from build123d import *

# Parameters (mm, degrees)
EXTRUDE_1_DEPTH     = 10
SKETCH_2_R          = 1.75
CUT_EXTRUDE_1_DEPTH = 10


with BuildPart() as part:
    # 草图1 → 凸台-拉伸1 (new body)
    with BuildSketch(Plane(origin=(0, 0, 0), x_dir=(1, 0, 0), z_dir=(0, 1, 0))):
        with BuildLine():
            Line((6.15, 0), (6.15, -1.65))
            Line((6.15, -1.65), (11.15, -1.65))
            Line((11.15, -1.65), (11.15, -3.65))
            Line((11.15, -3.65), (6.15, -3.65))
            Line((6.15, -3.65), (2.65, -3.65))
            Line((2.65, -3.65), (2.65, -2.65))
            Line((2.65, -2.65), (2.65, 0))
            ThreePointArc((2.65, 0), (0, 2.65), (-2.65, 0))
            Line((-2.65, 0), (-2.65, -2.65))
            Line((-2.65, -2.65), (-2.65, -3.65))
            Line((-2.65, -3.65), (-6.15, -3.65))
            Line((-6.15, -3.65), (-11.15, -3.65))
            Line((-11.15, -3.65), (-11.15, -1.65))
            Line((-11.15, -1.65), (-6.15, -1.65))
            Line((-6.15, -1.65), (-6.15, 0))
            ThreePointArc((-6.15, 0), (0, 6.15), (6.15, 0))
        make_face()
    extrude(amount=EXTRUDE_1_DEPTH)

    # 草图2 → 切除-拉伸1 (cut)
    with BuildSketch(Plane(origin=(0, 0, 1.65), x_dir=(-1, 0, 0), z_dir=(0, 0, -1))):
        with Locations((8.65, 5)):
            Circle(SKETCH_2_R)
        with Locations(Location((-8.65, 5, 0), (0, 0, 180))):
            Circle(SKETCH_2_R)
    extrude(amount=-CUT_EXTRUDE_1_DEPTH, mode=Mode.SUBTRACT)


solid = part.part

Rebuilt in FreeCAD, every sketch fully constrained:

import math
import FreeCAD as App
import Part
import Sketcher
from FreeCAD import Vector

doc = App.newDocument("Part")
body = doc.addObject("PartDesign::Body", "Body")

sketch1 = body.newObject("Sketcher::SketchObject", "Sketch")
sketch1.AttachmentSupport = (doc.getObject("XZ_Plane"), [""])
sketch1.MapMode = "FlatFace"
sketch1.addGeometry(Part.LineSegment(Vector(6.2, 1.6, 0), Vector(6.2, 0, 0)), False)
sketch1.addGeometry(Part.ArcOfCircle(Part.Circle(Vector(0, 0, 0), Vector(0, 0, 1), 6.2), math.radians(180), math.radians(360)), False)
sketch1.addGeometry(Part.LineSegment(Vector(-6.2, 0, 0), Vector(-6.2, 1.6, 0)), False)
sketch1.addGeometry(Part.LineSegment(Vector(-6.2, 1.6, 0), Vector(-11.2, 1.6, 0)), False)
sketch1.addGeometry(Part.LineSegment(Vector(-11.2, 1.6, 0), Vector(-11.2, 3.6, 0)), False)
sketch1.addGeometry(Part.LineSegment(Vector(-11.2, 3.6, 0), Vector(-2.6, 3.6, 0)), False)
sketch1.addGeometry(Part.LineSegment(Vector(-2.6, 3.6, 0), Vector(-2.6, 0, 0)), False)
sketch1.addGeometry(Part.ArcOfCircle(Part.Circle(Vector(0, 0, 0), Vector(0, 0, 1), 2.6), math.radians(180), math.radians(360)), False)
sketch1.addGeometry(Part.LineSegment(Vector(2.6, 0, 0), Vector(2.6, 3.6, 0)), False)
sketch1.addGeometry(Part.LineSegment(Vector(2.6, 3.6, 0), Vector(11.2, 3.6, 0)), False)
sketch1.addGeometry(Part.LineSegment(Vector(11.2, 3.6, 0), Vector(11.2, 1.6, 0)), False)
sketch1.addGeometry(Part.LineSegment(Vector(11.2, 1.6, 0), Vector(6.2, 1.6, 0)), False)
sketch1.addConstraint(Sketcher.Constraint("Tangent", 0, 2, 1, 2))
sketch1.addConstraint(Sketcher.Constraint("Tangent", 1, 1, 2, 1))
sketch1.addConstraint(Sketcher.Constraint("Coincident", 2, 2, 3, 1))
sketch1.addConstraint(Sketcher.Constraint("Coincident", 3, 2, 4, 1))
sketch1.addConstraint(Sketcher.Constraint("Coincident", 4, 2, 5, 1))
sketch1.addConstraint(Sketcher.Constraint("Coincident", 5, 2, 6, 1))
sketch1.addConstraint(Sketcher.Constraint("Tangent", 6, 2, 7, 1))
sketch1.addConstraint(Sketcher.Constraint("Tangent", 7, 2, 8, 1))
sketch1.addConstraint(Sketcher.Constraint("Coincident", 8, 2, 9, 1))
sketch1.addConstraint(Sketcher.Constraint("Coincident", 9, 2, 10, 1))
sketch1.addConstraint(Sketcher.Constraint("Coincident", 10, 2, 11, 1))
sketch1.addConstraint(Sketcher.Constraint("Coincident", 11, 2, 0, 1))
sketch1.addConstraint(Sketcher.Constraint("Vertical", 0))
sketch1.addConstraint(Sketcher.Constraint("Vertical", 2))
sketch1.addConstraint(Sketcher.Constraint("Horizontal", 3))
sketch1.addConstraint(Sketcher.Constraint("Vertical", 4))
sketch1.addConstraint(Sketcher.Constraint("Horizontal", 5))
sketch1.addConstraint(Sketcher.Constraint("Vertical", 6))
sketch1.addConstraint(Sketcher.Constraint("Vertical", 8))
sketch1.addConstraint(Sketcher.Constraint("Horizontal", 9))
sketch1.addConstraint(Sketcher.Constraint("Vertical", 10))
sketch1.addConstraint(Sketcher.Constraint("Horizontal", 11))
sketch1.addConstraint(Sketcher.Constraint("Coincident", 1, 3, -1, 1))
sketch1.addConstraint(Sketcher.Constraint("Coincident", 7, 3, -1, 1))
sketch1.addConstraint(Sketcher.Constraint("Symmetric", 4, 2, 9, 2, -2))
sketch1.addConstraint(Sketcher.Constraint("Horizontal", 3, 2, 10, 2))
sketch1.addConstraint(Sketcher.Constraint("DistanceX", 3, 2, 3, 1, 5.0))
sketch1.addConstraint(Sketcher.Constraint("DistanceY", 4, 1, 4, 2, 2.0))
sketch1.addConstraint(Sketcher.Constraint("Radius", 1, 6.15))
sketch1.addConstraint(Sketcher.Constraint("Radius", 7, 2.65))
sketch1.addConstraint(Sketcher.Constraint("DistanceY", 0, 2, 0, 1, 1.65))
pad1 = body.newObject("PartDesign::Pad", "Pad")
pad1.Profile = sketch1
pad1.Length = 10
pad1.Reversed = True

sketch2 = body.newObject("Sketcher::SketchObject", "Sketch001")
sketch2.AttachmentSupport = (doc.getObject("XY_Plane"), [""])
sketch2.MapMode = "FlatFace"
sketch2.AttachmentOffset = App.Placement(Vector(0, 0, 1.65), App.Rotation())
sketch2.addGeometry(Part.Circle(Vector(-8.7, 5, 0), Vector(0, 0, 1), 1.8), False)
sketch2.addGeometry(Part.Circle(Vector(8.7, 5, 0), Vector(0, 0, 1), 1.8), False)
sketch2.addConstraint(Sketcher.Constraint("Equal", 0, 1))
sketch2.addConstraint(Sketcher.Constraint("Symmetric", 0, 3, 1, 3, -2))
sketch2.addConstraint(Sketcher.Constraint("Diameter", 0, 3.5))
sketch2.addConstraint(Sketcher.Constraint("DistanceY", -1, 1, 0, 3, 5.0))
sketch2.addConstraint(Sketcher.Constraint("DistanceX", 0, 3, 1, 3, 17.3))
pocket1 = body.newObject("PartDesign::Pocket", "Pocket")
pocket1.Profile = sketch2
pocket1.Length = 10
pocket1.Reversed = True

doc.recompute()
